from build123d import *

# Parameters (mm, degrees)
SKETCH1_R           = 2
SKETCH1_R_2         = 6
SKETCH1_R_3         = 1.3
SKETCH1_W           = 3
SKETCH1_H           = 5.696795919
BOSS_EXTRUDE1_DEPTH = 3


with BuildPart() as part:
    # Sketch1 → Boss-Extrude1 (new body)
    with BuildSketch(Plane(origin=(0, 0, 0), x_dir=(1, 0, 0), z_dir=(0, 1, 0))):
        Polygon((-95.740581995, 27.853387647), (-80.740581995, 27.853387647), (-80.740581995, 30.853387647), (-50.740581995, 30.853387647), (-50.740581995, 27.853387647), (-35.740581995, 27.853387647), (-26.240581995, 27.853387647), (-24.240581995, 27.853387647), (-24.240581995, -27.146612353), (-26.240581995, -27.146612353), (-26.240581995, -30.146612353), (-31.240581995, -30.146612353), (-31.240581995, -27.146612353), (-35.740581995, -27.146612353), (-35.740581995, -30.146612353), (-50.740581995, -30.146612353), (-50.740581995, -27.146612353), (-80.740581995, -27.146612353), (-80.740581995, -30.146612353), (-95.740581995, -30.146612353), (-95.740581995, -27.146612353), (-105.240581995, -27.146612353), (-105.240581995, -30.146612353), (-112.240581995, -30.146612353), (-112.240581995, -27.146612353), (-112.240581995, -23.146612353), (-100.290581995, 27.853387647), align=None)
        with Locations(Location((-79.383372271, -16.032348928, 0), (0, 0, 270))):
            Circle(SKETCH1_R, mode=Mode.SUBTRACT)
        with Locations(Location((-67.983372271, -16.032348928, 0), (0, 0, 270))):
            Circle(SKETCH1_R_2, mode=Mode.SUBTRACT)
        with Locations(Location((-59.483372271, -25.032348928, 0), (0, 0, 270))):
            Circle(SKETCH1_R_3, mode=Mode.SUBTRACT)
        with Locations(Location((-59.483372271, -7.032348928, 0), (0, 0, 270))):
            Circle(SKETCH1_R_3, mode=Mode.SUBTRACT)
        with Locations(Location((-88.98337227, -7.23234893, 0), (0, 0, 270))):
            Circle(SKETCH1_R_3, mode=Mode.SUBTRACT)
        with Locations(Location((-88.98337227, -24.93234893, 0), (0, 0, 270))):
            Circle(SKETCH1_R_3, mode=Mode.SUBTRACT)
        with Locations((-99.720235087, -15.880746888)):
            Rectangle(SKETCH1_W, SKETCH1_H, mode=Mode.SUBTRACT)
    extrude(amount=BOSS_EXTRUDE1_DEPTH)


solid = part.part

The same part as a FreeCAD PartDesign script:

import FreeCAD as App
import Part
import Sketcher
from FreeCAD import Vector
Q = App.Units.Quantity


def add_polygon(sketch, points):
    """Adds a closed chain of lines whose ends are joined by coincident constraints."""
    first, n = sketch.GeometryCount, len(points)
    for a, b in zip(points, points[1:] + points[:1]):
        sketch.addGeometry(Part.LineSegment(App.Vector(*a, 0), App.Vector(*b, 0)), False)
    for i in range(n):
        sketch.addConstraint(Sketcher.Constraint("Coincident", first + i, 2, first + (i + 1) % n, 1))

doc = App.newDocument("Part")
params = doc.addObject("Spreadsheet::Sheet", "Params")
for row, (alias, value) in enumerate([
    ("sketch1_diameter", "12 mm"),
    ("sketch1_diameter2", "4 mm"),
    ("sketch1_diameter3", "2.6 mm"),
    ("sketch1_width", "7 mm"),
    ("sketch1_width2", "15 mm"),
    ("pad1_length", "3 mm"),
], start=1):
    params.set(f"A{row}", alias)
    params.set(f"B{row}", "=" + value)
    params.setAlias(f"B{row}", alias)

body = doc.addObject("PartDesign::Body", "Body")

# Sketch on XZ plane
sketch1 = doc.addObject("Sketcher::SketchObject", "Sketch")
body.addObject(sketch1)
sketch1.AttachmentSupport = (doc.XZ_Plane, [""])
sketch1.MapMode = "FlatFace"
add_polygon(sketch1, [(-80.740582, -27.853388), (-100.290582, -27.853388), (-112.240582, 23.146612), (-112.240582, 30.146612), (-105.240582, 30.146612), (-105.240582, 27.146612), (-95.740582, 27.146612), (-95.740582, 30.146612), (-80.740582, 30.146612), (-80.740582, 27.146612), (-50.740582, 27.146612), (-50.740582, 30.146612), (-35.740582, 30.146612), (-35.740582, 27.146612), (-31.240582, 27.146612), (-31.240582, 30.146612), (-26.240582, 30.146612), (-26.240582, 27.146612), (-24.240582, 27.146612), (-24.240582, -27.853388), (-50.740582, -27.853388), (-50.740582, -30.853388), (-80.740582, -30.853388)])  # lines 0-22
sketch1.addGeometry(Part.Circle(Vector(-59.483372, 25.032349, 0), Vector(0, 0, 1), 1.3), False)  # 23
sketch1.addGeometry(Part.Circle(Vector(-88.983372, 24.932349, 0), Vector(0, 0, 1), 1.3), False)  # 24
sketch1.addGeometry(Part.Circle(Vector(-67.983372, 16.032349, 0), Vector(0, 0, 1), 6), False)  # 25
sketch1.addGeometry(Part.Circle(Vector(-79.383372, 16.032349, 0), Vector(0, 0, 1), 2), False)  # 26
sketch1.addGeometry(Part.Circle(Vector(-59.483372, 7.032349, 0), Vector(0, 0, 1), 1.3), False)  # 27
add_polygon(sketch1, [(-101.220235, 18.729145), (-101.220235, 13.032349), (-98.220235, 13.032349), (-98.220235, 18.729145)])  # lines 28-31
sketch1.addGeometry(Part.Circle(Vector(-88.983372, 7.232349, 0), Vector(0, 0, 1), 1.3), False)  # 32
sketch1.addConstraint([
    Sketcher.Constraint("Horizontal", 0),
    Sketcher.Constraint("Vertical", 2),
    Sketcher.Constraint("Horizontal", 3),
    Sketcher.Constraint("Vertical", 4),
    Sketcher.Constraint("Horizontal", 5),
    Sketcher.Constraint("Vertical", 6),
    Sketcher.Constraint("Horizontal", 7),
    Sketcher.Constraint("Vertical", 8),
    Sketcher.Constraint("Horizontal", 9),
    Sketcher.Constraint("Vertical", 10),
    Sketcher.Constraint("Horizontal", 11),
    Sketcher.Constraint("Vertical", 12),
    Sketcher.Constraint("Horizontal", 13),
    Sketcher.Constraint("Vertical", 14),
    Sketcher.Constraint("Horizontal", 15),
    Sketcher.Constraint("Vertical", 16),
    Sketcher.Constraint("Horizontal", 17),
    Sketcher.Constraint("Vertical", 18),
    Sketcher.Constraint("Horizontal", 19),
    Sketcher.Constraint("Vertical", 20),
    Sketcher.Constraint("Horizontal", 21),
    Sketcher.Constraint("Vertical", 22),
    Sketcher.Constraint("Vertical", 28),
    Sketcher.Constraint("Horizontal", 29),
    Sketcher.Constraint("Vertical", 30),
    Sketcher.Constraint("Horizontal", 31),
    Sketcher.Constraint("Equal", 23, 24),
    Sketcher.Constraint("Equal", 24, 27),
    Sketcher.Constraint("Equal", 27, 32),
    Sketcher.Constraint("Horizontal", 25, 3, 26, 3),
    Sketcher.Constraint("Horizontal", 3, 2, 6, 2),
    Sketcher.Constraint("Horizontal", 5, 2, 8, 2),
    Sketcher.Constraint("Horizontal", 7, 2, 10, 2),
    Sketcher.Constraint("Horizontal", 9, 2, 12, 2),
    Sketcher.Constraint("Horizontal", 11, 2, 14, 2),
    Sketcher.Constraint("Horizontal", 13, 2, 16, 2),
    Sketcher.Constraint("Horizontal", 0, 2, 18, 2),
    Sketcher.Constraint("Vertical", 23, 3, 27, 3),
    Sketcher.Constraint("Vertical", 24, 3, 32, 3),
    Sketcher.Constraint("Vertical", 10, 2, 19, 2),
    Sketcher.Constraint("Vertical", 8, 2, 21, 2),
    Sketcher.Constraint("Equal", 7, 11),
    Sketcher.Constraint("Equal", 3, 2),
    Sketcher.Constraint("Equal", 31, 4),
    Sketcher.Constraint("Equal", 16, 20),
    Sketcher.Constraint("Diameter", 25, Q("12 mm")),
    Sketcher.Constraint("Diameter", 26, Q("4 mm")),
    Sketcher.Constraint("Diameter", 23, Q("2.6 mm")),
    Sketcher.Constraint("DistanceX", 3, 1, 3, 2, Q("7 mm")),
    Sketcher.Constraint("DistanceX", 7, 1, 7, 2, Q("15 mm")),
    Sketcher.Constraint("DistanceX", 9, 1, 9, 2, Q("30 mm")),
    Sketcher.Constraint("DistanceX", 15, 1, 15, 2, Q("5 mm")),
    Sketcher.Constraint("DistanceX", 17, 1, 17, 2, Q("2 mm")),
    Sketcher.Constraint("DistanceX", 29, 1, 29, 2, Q("3 mm")),
    Sketcher.Constraint("DistanceY", 18, 2, 18, 1, Q("55 mm")),
    Sketcher.Constraint("DistanceX", 5, 1, 5, 2, Q("9.5 mm")),
    Sketcher.Constraint("DistanceX", 13, 1, 13, 2, Q("4.5 mm")),
    Sketcher.Constraint("DistanceY", 25, 3, 23, 3, Q("9 mm")),
    Sketcher.Constraint("DistanceX", 24, 3, 25, 3, Q("21 mm")),
    Sketcher.Constraint("DistanceY", 27, 3, 25, 3, Q("9 mm")),
    Sketcher.Constraint("DistanceX", 0, 2, 0, 1, Q("19.55 mm")),
    Sketcher.Constraint("DistanceX", 24, 3, 23, 3, Q("29.5 mm")),
    Sketcher.Constraint("DistanceY", 24, 3, 23, 3, Q("0.1 mm")),
    Sketcher.Constraint("DistanceX", 26, 3, 25, 3, Q("11.4 mm")),
    Sketcher.Constraint("DistanceY", 32, 3, 26, 3, Q("8.8 mm")),
    Sketcher.Constraint("DistanceY", 32, 3, 28, 2, Q("5.8 mm")),
    Sketcher.Constraint("DistanceY", 28, 2, 28, 1, Q("5.696796 mm")),
    Sketcher.Constraint("DistanceY", -1, 1, 23, 3, Q("25.032349 mm")),
    Sketcher.Constraint("DistanceX", 0, 2, -1, 1, Q("100.290582 mm")),
    Sketcher.Constraint("DistanceX", 0, 2, 32, 3, Q("11.30721 mm")),
    Sketcher.Constraint("DistanceY", 0, 2, -1, 1, Q("27.853388 mm")),
    Sketcher.Constraint("DistanceX", 28, 2, -1, 1, Q("101.220235 mm")),
])
sketch1.setExpression("Constraints[72]", "Params.sketch1_diameter")
sketch1.setExpression("Constraints[73]", "Params.sketch1_diameter2")
sketch1.setExpression("Constraints[74]", "Params.sketch1_diameter3")
sketch1.setExpression("Constraints[75]", "Params.sketch1_width")
sketch1.setExpression("Constraints[76]", "Params.sketch1_width2")
pad1 = doc.addObject("PartDesign::Pad", "Pad")
body.addObject(pad1)
pad1.Profile = sketch1
pad1.setExpression("Length", "Params.pad1_length")
pad1.Reversed = True

doc.recompute()
